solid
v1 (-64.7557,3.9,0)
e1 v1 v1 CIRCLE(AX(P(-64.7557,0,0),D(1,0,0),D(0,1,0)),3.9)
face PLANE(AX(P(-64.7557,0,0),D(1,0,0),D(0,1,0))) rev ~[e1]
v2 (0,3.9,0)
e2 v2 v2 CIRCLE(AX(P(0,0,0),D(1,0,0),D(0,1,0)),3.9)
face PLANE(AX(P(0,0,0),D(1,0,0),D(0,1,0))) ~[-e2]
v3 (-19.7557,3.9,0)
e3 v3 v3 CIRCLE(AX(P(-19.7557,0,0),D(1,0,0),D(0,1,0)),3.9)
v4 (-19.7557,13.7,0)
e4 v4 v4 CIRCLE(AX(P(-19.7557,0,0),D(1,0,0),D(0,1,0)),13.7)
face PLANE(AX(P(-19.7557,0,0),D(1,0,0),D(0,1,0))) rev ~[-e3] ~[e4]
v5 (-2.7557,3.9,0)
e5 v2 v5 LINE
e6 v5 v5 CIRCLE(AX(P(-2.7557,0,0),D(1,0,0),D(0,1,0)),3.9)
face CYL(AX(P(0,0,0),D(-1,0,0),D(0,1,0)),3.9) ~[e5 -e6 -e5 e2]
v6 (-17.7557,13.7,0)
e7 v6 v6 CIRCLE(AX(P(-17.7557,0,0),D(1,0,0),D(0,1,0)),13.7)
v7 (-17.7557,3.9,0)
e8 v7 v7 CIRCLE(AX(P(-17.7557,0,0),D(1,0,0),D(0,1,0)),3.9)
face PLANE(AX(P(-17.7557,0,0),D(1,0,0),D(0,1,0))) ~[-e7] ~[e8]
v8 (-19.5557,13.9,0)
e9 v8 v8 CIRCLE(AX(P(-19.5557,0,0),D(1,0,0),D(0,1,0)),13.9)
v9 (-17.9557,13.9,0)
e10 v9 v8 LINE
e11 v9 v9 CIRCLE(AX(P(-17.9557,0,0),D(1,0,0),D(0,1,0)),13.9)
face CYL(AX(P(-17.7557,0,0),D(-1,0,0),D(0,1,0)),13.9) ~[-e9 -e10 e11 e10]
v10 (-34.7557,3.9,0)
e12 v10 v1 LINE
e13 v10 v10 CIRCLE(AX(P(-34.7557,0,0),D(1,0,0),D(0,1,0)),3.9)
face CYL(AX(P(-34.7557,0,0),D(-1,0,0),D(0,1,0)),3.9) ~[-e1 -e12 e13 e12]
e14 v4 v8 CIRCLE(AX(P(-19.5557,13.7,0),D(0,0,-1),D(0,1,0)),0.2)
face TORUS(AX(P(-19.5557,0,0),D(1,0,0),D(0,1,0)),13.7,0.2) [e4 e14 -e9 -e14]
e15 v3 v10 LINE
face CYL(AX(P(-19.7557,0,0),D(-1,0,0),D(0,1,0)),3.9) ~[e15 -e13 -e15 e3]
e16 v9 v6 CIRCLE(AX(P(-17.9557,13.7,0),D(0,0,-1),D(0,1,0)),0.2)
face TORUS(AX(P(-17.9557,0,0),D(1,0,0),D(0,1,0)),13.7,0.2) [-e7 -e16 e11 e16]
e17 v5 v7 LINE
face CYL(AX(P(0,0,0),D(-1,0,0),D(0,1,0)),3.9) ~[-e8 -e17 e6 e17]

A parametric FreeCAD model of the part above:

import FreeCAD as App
import Part
import Sketcher

V = App.Vector


def edges_at(feature, points):
    """Names of the edges that pass closest to the given points."""
    edges = feature.Shape.Edges
    near = lambda p: min(range(len(edges)), key=lambda i: edges[i].distToShape(Part.Vertex(*p))[0])
    return sorted({f"Edge{near(p) + 1}" for p in points})

doc = App.newDocument("Part")
body = doc.addObject("PartDesign::Body", "Body")

# Sketch on XY plane
sketch1 = body.newObject("Sketcher::SketchObject", "Sketch")
sketch1.AttachmentSupport = (doc.getObject("XY_Plane"), [""])
sketch1.MapMode = "FlatFace"
sketch1.addGeometry([
    Part.LineSegment(V(-64.7557, 0, 0), V(0, 0, 0)),  # 0
    Part.LineSegment(V(0, 0, 0), V(0, 3.9, 0)),  # 1
    Part.LineSegment(V(0, 3.9, 0), V(-17.7557, 3.9, 0)),  # 2
    Part.LineSegment(V(-17.7557, 3.9, 0), V(-17.7557, 13.9, 0)),  # 3
    Part.LineSegment(V(-17.7557, 13.9, 0), V(-19.7557, 13.9, 0)),  # 4
    Part.LineSegment(V(-19.7557, 13.9, 0), V(-19.7557, 3.9, 0)),  # 5
    Part.LineSegment(V(-19.7557, 3.9, 0), V(-64.7557, 3.9, 0)),  # 6
    Part.LineSegment(V(-64.7557, 3.9, 0), V(-64.7557, 0, 0)),  # 7
], False)
sketch1.addConstraint([
    Sketcher.Constraint("Coincident", 0, 2, 1, 1),
    Sketcher.Constraint("Coincident", 1, 2, 2, 1),
    Sketcher.Constraint("Coincident", 2, 2, 3, 1),
    Sketcher.Constraint("Coincident", 3, 2, 4, 1),
    Sketcher.Constraint("Coincident", 4, 2, 5, 1),
    Sketcher.Constraint("Coincident", 5, 2, 6, 1),
    Sketcher.Constraint("Coincident", 6, 2, 7, 1),
    Sketcher.Constraint("Coincident", 7, 2, 0, 1),
    Sketcher.Constraint("Horizontal", 0),
    Sketcher.Constraint("Vertical", 1),
    Sketcher.Constraint("Horizontal", 2),
    Sketcher.Constraint("Vertical", 3),
    Sketcher.Constraint("Horizontal", 4),
    Sketcher.Constraint("Vertical", 5),
    Sketcher.Constraint("Horizontal", 6),
    Sketcher.Constraint("Vertical", 7),
    Sketcher.Constraint("Coincident", 0, 2, -1, 1),
    Sketcher.Constraint("Horizontal", 2, 2, 5, 2),
    Sketcher.Constraint("DistanceX", 4, 2, 4, 1, 2.0),
    Sketcher.Constraint("DistanceY", 3, 1, 3, 2, 10.0),
    Sketcher.Constraint("DistanceY", 1, 1, 1, 2, 3.9),
    Sketcher.Constraint("DistanceX", 6, 2, 6, 1, 45.0),
    Sketcher.Constraint("DistanceX", 0, 1, 0, 2, 64.7557),
])
revolution = body.newObject("PartDesign::Revolution", "Revolution")
revolution.Profile = sketch1
revolution.ReferenceAxis = (sketch1, ["H_Axis"])
revolution.Angle = 360
doc.recompute()

fillet = body.newObject("PartDesign::Fillet", "Fillet")
fillet.Base = (revolution, edges_at(revolution, [(-19.756, -13.9, 0), (-17.756, -13.9, 0)]))
fillet.Radius = 0.2

doc.recompute()
